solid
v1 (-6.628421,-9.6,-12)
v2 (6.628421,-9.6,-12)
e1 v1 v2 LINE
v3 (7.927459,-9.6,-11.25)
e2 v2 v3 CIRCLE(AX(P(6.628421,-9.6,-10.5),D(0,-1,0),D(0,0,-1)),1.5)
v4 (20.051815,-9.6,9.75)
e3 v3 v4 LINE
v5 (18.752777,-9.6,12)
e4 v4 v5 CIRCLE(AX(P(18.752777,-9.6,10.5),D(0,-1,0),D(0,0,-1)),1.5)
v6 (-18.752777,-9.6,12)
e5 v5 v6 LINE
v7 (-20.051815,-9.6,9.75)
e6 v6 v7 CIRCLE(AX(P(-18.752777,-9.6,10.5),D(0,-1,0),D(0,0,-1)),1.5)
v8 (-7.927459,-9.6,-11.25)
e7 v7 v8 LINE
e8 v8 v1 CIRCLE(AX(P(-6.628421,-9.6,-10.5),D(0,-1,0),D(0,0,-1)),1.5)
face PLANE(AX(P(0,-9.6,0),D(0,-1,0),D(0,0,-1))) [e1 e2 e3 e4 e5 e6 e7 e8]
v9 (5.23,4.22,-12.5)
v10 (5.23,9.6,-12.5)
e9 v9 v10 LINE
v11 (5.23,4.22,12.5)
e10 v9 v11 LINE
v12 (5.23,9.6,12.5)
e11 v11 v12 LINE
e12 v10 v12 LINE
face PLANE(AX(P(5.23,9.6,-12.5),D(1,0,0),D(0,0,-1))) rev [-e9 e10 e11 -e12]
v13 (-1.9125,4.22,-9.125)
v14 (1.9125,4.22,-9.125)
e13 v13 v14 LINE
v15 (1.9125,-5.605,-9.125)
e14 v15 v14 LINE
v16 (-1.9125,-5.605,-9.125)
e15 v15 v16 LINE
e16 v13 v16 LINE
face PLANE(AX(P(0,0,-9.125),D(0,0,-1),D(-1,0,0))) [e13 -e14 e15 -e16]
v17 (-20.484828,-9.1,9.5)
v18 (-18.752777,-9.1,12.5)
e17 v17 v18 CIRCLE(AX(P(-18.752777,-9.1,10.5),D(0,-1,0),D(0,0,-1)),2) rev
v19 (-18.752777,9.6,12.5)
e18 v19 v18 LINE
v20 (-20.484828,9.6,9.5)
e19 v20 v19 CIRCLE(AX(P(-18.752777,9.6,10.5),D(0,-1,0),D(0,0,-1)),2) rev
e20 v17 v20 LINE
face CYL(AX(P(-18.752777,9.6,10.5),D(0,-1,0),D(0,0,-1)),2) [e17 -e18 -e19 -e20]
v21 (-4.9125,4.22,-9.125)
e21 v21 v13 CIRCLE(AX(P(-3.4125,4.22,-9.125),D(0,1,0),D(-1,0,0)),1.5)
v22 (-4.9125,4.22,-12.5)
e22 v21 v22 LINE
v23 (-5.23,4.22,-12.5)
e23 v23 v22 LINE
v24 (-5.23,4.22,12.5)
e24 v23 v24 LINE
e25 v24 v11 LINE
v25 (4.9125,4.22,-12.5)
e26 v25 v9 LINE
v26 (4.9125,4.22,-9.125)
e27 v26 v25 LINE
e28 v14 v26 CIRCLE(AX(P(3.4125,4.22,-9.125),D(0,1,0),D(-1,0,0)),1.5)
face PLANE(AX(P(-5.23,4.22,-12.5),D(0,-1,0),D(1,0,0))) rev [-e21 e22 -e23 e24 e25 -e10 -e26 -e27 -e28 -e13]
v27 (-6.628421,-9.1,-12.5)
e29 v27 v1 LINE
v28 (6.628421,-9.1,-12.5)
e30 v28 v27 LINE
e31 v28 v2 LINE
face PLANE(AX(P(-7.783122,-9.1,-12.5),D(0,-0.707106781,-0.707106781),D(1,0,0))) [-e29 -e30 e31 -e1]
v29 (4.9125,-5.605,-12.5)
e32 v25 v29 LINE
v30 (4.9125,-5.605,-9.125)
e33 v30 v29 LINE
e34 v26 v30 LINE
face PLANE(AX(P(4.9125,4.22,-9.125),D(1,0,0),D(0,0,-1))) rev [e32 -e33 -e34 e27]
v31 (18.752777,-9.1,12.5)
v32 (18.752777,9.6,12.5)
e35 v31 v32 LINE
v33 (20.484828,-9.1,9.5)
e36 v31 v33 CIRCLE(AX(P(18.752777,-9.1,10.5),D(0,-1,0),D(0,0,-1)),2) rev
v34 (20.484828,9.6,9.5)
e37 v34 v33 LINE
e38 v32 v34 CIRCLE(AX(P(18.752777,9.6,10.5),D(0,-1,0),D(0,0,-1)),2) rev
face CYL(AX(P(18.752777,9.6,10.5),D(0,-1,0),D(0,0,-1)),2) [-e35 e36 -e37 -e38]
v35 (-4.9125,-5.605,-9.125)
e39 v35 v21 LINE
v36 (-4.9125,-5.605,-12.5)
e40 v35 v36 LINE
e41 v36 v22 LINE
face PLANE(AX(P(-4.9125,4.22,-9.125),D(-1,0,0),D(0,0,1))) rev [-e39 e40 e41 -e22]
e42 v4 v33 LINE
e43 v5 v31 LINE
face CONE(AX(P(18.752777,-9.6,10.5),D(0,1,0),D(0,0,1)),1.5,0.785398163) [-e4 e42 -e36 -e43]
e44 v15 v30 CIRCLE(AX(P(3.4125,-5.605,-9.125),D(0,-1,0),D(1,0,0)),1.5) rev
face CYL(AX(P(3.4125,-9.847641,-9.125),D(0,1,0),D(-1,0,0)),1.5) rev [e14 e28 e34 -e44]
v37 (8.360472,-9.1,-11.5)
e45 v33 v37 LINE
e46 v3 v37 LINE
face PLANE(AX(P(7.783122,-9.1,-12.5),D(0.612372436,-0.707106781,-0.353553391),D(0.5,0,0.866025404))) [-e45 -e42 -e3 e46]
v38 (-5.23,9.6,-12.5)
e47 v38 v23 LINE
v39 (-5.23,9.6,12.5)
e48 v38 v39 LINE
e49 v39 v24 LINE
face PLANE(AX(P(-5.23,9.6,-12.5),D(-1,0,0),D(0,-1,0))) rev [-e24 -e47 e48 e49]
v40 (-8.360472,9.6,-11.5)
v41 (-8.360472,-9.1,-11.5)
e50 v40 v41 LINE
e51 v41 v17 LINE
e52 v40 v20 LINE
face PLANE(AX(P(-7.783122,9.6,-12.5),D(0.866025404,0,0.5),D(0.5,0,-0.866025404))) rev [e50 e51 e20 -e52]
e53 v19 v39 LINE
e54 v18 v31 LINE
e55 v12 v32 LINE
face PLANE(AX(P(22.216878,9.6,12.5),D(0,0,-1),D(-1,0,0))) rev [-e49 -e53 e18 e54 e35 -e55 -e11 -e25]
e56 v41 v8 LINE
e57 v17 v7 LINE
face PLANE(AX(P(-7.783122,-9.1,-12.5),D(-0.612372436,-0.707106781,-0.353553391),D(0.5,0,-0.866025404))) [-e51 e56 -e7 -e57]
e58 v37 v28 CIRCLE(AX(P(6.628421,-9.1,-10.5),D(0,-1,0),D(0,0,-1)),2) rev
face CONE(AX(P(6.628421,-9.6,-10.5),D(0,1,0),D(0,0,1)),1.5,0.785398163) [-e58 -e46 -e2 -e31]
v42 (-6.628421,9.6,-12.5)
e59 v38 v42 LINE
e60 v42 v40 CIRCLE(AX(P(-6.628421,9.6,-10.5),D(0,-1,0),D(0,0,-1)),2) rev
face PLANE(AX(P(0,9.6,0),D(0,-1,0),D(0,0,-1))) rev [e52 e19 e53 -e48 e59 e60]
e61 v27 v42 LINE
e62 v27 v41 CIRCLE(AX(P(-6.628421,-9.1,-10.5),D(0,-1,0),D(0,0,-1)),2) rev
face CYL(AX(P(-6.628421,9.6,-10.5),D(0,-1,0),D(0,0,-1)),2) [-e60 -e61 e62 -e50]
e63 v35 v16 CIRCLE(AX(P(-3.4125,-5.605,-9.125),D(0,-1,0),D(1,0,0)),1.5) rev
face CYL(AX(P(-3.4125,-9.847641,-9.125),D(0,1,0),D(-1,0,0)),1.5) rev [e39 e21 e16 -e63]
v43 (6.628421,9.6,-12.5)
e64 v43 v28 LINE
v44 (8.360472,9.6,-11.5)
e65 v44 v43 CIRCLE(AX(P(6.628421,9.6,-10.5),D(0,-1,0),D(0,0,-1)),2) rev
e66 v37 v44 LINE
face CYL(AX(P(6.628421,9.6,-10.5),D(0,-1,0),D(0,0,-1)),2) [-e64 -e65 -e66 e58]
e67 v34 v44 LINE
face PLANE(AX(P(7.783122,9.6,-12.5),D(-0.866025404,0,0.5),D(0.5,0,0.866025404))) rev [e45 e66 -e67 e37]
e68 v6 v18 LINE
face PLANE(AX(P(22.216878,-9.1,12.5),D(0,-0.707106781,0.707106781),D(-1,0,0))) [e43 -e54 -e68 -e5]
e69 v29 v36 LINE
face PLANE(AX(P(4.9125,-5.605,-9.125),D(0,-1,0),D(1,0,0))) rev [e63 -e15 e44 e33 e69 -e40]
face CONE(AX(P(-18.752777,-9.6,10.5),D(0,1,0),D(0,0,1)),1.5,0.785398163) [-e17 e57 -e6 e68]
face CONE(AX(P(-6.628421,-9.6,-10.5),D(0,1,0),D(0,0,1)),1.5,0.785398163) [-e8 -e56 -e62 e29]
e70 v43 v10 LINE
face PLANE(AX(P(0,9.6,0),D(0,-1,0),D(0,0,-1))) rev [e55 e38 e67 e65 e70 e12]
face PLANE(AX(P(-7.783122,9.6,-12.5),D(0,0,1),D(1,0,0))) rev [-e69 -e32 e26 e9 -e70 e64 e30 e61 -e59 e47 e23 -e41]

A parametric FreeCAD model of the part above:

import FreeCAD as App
import Part
import Sketcher

V = App.Vector
Q = App.Units.Quantity


def edges_at(feature, points):
    """Names of the edges that pass closest to the given points."""
    edges = feature.Shape.Edges
    near = lambda p: min(range(len(edges)), key=lambda i: edges[i].distToShape(Part.Vertex(*p))[0])
    return sorted({f"Edge{near(p) + 1}" for p in points})


def add_polygon(sketch, points):
    """Adds a closed chain of lines whose ends are joined by coincident constraints."""
    first, n = sketch.GeometryCount, len(points)
    for a, b in zip(points, points[1:] + points[:1]):
        sketch.addGeometry(Part.LineSegment(App.Vector(*a, 0), App.Vector(*b, 0)), False)
    for i in range(n):
        sketch.addConstraint(Sketcher.Constraint("Coincident", first + i, 2, first + (i + 1) % n, 1))

doc = App.newDocument("Part")
body = doc.addObject("PartDesign::Body", "Body")

sketch1 = body.newObject("Sketcher::SketchObject", "Sketch")
sketch1.AttachmentSupport = (doc.getObject("XZ_Plane"), [""])
sketch1.MapMode = "FlatFace"
add_polygon(sketch1, [(22, 12), (8, -12), (-8, -12), (-22, 12)])
sketch1.addConstraint([
    Sketcher.Constraint("Horizontal", 1),
    Sketcher.Constraint("Horizontal", 3),
    Sketcher.Constraint("Equal", 0, 2),
    Sketcher.Constraint("Angle", 0, Q("-120 deg")),
    Sketcher.Constraint("DistanceY", 1, 2, 2, 2, 25.0),
    Sketcher.Constraint("DistanceX", 2, 2, 0, 2, 30.0),
    Sketcher.Constraint("DistanceY", 0, 2, -1, 1, 12.5),
    Sketcher.Constraint("DistanceX", -1, 1, 0, 2, 7.783122),
])
pad1 = body.newObject("PartDesign::Pad", "Pad")
pad1.Profile = sketch1
pad1.Length = 19.2
pad1.Midplane = True
doc.recompute()

fillet = body.newObject("PartDesign::Fillet", "Fillet")
fillet.Base = (pad1, edges_at(pad1, [
    (-22.217, 0, 12.5),
    (-7.783, 0, -12.5),
    (7.783, 0, -12.5),
    (22.217, 0, 12.5),
]))
fillet.Radius = 2

sketch2 = body.newObject("Sketcher::SketchObject", "Sketch001")
sketch2.AttachmentSupport = (doc.getObject("XY_Plane"), [""])
sketch2.MapMode = "FlatFace"
sketch2.AttachmentOffset = App.Placement(V(0, 0, 12.5), App.Rotation())
add_polygon(sketch2, [(-5, 10), (-5, 4), (5, 4), (5, 10)])
sketch2.addConstraint([
    Sketcher.Constraint("Vertical", 0),
    Sketcher.Constraint("Horizontal", 1),
    Sketcher.Constraint("Vertical", 2),
    Sketcher.Constraint("Horizontal", 3),
    Sketcher.Constraint("DistanceX", 1, 1, 1, 2, 10.46),
    Sketcher.Constraint("DistanceY", 0, 2, 0, 1, 5.38),
    Sketcher.Constraint("DistanceY", -1, 1, 2, 2, 9.6),
    Sketcher.Constraint("DistanceX", 0, 2, -1, 1, 5.23),
])
pocket1 = body.newObject("PartDesign::Pocket", "Pocket")
pocket1.Profile = sketch2
pocket1.Type = "ThroughAll"

sketch3 = body.newObject("Sketcher::SketchObject", "Sketch002")
sketch3.AttachmentSupport = (doc.getObject("XY_Plane"), [""])
sketch3.MapMode = "FlatFace"
sketch3.AttachmentOffset = App.Placement(V(0, 0, -12.5), App.Rotation())
add_polygon(sketch3, [(5, 4), (5, -6), (-5, -6), (-5, 4)])
sketch3.addConstraint([
    Sketcher.Constraint("Vertical", 0),
    Sketcher.Constraint("Horizontal", 1),
    Sketcher.Constraint("Vertical", 2),
    Sketcher.Constraint("Horizontal", 3),
    Sketcher.Constraint("Equal", 3, 0),
    Sketcher.Constraint("DistanceX", 1, 2, 1, 1, 9.825),
    Sketcher.Constraint("DistanceY", -1, 1, 2, 2, 4.22),
    Sketcher.Constraint("DistanceX", -1, 1, 0, 2, 4.9125),
])
pocket2 = body.newObject("PartDesign::Pocket", "Pocket001")
pocket2.Profile = sketch3
pocket2.Length = 3.375
pocket2.Reversed = True

sketch4 = body.newObject("Sketcher::SketchObject", "Sketch003")
sketch4.AttachmentSupport = (doc.getObject("XZ_Plane"), [""])
sketch4.MapMode = "FlatFace"
sketch4.AttachmentOffset = App.Placement(V(0, 0, -4.22), App.Rotation())
sketch4.addGeometry([
    Part.Circle(V(3.4, -9.1, 0), V(0, 0, 1), 1.5),
    Part.Circle(V(-3.4, -9.1, 0), V(0, 0, 1), 1.5),
], False)
sketch4.addConstraint([
    Sketcher.Constraint("Equal", 0, 1),
    Sketcher.Constraint("Symmetric", 0, 3, 1, 3, -2),
    Sketcher.Constraint("Diameter", 0, 3.0),
    Sketcher.Constraint("DistanceY", 0, 3, -1, 1, 9.125),
    Sketcher.Constraint("DistanceX", 1, 3, 0, 3, 6.825),
])
pocket3 = body.newObject("PartDesign::Pocket", "Pocket002")
pocket3.Profile = sketch4
pocket3.Length = 9.825
pocket3.Reversed = True
doc.recompute()

chamfer = body.newObject("PartDesign::Chamfer", "Chamfer")
chamfer.Base = (pocket3, edges_at(pocket3, [
    (-14.423, -9.6, -1),
    (0, -9.6, 12.5),
    (0, -9.6, -12.5),
    (14.423, -9.6, -1),
    (-20.485, -9.6, 11.5),
    (20.485, -9.6, 11.5),
    (7.628, -9.6, -12.232),
    (-7.628, -9.6, -12.232),
]))
chamfer.Size = 0.5

doc.recompute()
